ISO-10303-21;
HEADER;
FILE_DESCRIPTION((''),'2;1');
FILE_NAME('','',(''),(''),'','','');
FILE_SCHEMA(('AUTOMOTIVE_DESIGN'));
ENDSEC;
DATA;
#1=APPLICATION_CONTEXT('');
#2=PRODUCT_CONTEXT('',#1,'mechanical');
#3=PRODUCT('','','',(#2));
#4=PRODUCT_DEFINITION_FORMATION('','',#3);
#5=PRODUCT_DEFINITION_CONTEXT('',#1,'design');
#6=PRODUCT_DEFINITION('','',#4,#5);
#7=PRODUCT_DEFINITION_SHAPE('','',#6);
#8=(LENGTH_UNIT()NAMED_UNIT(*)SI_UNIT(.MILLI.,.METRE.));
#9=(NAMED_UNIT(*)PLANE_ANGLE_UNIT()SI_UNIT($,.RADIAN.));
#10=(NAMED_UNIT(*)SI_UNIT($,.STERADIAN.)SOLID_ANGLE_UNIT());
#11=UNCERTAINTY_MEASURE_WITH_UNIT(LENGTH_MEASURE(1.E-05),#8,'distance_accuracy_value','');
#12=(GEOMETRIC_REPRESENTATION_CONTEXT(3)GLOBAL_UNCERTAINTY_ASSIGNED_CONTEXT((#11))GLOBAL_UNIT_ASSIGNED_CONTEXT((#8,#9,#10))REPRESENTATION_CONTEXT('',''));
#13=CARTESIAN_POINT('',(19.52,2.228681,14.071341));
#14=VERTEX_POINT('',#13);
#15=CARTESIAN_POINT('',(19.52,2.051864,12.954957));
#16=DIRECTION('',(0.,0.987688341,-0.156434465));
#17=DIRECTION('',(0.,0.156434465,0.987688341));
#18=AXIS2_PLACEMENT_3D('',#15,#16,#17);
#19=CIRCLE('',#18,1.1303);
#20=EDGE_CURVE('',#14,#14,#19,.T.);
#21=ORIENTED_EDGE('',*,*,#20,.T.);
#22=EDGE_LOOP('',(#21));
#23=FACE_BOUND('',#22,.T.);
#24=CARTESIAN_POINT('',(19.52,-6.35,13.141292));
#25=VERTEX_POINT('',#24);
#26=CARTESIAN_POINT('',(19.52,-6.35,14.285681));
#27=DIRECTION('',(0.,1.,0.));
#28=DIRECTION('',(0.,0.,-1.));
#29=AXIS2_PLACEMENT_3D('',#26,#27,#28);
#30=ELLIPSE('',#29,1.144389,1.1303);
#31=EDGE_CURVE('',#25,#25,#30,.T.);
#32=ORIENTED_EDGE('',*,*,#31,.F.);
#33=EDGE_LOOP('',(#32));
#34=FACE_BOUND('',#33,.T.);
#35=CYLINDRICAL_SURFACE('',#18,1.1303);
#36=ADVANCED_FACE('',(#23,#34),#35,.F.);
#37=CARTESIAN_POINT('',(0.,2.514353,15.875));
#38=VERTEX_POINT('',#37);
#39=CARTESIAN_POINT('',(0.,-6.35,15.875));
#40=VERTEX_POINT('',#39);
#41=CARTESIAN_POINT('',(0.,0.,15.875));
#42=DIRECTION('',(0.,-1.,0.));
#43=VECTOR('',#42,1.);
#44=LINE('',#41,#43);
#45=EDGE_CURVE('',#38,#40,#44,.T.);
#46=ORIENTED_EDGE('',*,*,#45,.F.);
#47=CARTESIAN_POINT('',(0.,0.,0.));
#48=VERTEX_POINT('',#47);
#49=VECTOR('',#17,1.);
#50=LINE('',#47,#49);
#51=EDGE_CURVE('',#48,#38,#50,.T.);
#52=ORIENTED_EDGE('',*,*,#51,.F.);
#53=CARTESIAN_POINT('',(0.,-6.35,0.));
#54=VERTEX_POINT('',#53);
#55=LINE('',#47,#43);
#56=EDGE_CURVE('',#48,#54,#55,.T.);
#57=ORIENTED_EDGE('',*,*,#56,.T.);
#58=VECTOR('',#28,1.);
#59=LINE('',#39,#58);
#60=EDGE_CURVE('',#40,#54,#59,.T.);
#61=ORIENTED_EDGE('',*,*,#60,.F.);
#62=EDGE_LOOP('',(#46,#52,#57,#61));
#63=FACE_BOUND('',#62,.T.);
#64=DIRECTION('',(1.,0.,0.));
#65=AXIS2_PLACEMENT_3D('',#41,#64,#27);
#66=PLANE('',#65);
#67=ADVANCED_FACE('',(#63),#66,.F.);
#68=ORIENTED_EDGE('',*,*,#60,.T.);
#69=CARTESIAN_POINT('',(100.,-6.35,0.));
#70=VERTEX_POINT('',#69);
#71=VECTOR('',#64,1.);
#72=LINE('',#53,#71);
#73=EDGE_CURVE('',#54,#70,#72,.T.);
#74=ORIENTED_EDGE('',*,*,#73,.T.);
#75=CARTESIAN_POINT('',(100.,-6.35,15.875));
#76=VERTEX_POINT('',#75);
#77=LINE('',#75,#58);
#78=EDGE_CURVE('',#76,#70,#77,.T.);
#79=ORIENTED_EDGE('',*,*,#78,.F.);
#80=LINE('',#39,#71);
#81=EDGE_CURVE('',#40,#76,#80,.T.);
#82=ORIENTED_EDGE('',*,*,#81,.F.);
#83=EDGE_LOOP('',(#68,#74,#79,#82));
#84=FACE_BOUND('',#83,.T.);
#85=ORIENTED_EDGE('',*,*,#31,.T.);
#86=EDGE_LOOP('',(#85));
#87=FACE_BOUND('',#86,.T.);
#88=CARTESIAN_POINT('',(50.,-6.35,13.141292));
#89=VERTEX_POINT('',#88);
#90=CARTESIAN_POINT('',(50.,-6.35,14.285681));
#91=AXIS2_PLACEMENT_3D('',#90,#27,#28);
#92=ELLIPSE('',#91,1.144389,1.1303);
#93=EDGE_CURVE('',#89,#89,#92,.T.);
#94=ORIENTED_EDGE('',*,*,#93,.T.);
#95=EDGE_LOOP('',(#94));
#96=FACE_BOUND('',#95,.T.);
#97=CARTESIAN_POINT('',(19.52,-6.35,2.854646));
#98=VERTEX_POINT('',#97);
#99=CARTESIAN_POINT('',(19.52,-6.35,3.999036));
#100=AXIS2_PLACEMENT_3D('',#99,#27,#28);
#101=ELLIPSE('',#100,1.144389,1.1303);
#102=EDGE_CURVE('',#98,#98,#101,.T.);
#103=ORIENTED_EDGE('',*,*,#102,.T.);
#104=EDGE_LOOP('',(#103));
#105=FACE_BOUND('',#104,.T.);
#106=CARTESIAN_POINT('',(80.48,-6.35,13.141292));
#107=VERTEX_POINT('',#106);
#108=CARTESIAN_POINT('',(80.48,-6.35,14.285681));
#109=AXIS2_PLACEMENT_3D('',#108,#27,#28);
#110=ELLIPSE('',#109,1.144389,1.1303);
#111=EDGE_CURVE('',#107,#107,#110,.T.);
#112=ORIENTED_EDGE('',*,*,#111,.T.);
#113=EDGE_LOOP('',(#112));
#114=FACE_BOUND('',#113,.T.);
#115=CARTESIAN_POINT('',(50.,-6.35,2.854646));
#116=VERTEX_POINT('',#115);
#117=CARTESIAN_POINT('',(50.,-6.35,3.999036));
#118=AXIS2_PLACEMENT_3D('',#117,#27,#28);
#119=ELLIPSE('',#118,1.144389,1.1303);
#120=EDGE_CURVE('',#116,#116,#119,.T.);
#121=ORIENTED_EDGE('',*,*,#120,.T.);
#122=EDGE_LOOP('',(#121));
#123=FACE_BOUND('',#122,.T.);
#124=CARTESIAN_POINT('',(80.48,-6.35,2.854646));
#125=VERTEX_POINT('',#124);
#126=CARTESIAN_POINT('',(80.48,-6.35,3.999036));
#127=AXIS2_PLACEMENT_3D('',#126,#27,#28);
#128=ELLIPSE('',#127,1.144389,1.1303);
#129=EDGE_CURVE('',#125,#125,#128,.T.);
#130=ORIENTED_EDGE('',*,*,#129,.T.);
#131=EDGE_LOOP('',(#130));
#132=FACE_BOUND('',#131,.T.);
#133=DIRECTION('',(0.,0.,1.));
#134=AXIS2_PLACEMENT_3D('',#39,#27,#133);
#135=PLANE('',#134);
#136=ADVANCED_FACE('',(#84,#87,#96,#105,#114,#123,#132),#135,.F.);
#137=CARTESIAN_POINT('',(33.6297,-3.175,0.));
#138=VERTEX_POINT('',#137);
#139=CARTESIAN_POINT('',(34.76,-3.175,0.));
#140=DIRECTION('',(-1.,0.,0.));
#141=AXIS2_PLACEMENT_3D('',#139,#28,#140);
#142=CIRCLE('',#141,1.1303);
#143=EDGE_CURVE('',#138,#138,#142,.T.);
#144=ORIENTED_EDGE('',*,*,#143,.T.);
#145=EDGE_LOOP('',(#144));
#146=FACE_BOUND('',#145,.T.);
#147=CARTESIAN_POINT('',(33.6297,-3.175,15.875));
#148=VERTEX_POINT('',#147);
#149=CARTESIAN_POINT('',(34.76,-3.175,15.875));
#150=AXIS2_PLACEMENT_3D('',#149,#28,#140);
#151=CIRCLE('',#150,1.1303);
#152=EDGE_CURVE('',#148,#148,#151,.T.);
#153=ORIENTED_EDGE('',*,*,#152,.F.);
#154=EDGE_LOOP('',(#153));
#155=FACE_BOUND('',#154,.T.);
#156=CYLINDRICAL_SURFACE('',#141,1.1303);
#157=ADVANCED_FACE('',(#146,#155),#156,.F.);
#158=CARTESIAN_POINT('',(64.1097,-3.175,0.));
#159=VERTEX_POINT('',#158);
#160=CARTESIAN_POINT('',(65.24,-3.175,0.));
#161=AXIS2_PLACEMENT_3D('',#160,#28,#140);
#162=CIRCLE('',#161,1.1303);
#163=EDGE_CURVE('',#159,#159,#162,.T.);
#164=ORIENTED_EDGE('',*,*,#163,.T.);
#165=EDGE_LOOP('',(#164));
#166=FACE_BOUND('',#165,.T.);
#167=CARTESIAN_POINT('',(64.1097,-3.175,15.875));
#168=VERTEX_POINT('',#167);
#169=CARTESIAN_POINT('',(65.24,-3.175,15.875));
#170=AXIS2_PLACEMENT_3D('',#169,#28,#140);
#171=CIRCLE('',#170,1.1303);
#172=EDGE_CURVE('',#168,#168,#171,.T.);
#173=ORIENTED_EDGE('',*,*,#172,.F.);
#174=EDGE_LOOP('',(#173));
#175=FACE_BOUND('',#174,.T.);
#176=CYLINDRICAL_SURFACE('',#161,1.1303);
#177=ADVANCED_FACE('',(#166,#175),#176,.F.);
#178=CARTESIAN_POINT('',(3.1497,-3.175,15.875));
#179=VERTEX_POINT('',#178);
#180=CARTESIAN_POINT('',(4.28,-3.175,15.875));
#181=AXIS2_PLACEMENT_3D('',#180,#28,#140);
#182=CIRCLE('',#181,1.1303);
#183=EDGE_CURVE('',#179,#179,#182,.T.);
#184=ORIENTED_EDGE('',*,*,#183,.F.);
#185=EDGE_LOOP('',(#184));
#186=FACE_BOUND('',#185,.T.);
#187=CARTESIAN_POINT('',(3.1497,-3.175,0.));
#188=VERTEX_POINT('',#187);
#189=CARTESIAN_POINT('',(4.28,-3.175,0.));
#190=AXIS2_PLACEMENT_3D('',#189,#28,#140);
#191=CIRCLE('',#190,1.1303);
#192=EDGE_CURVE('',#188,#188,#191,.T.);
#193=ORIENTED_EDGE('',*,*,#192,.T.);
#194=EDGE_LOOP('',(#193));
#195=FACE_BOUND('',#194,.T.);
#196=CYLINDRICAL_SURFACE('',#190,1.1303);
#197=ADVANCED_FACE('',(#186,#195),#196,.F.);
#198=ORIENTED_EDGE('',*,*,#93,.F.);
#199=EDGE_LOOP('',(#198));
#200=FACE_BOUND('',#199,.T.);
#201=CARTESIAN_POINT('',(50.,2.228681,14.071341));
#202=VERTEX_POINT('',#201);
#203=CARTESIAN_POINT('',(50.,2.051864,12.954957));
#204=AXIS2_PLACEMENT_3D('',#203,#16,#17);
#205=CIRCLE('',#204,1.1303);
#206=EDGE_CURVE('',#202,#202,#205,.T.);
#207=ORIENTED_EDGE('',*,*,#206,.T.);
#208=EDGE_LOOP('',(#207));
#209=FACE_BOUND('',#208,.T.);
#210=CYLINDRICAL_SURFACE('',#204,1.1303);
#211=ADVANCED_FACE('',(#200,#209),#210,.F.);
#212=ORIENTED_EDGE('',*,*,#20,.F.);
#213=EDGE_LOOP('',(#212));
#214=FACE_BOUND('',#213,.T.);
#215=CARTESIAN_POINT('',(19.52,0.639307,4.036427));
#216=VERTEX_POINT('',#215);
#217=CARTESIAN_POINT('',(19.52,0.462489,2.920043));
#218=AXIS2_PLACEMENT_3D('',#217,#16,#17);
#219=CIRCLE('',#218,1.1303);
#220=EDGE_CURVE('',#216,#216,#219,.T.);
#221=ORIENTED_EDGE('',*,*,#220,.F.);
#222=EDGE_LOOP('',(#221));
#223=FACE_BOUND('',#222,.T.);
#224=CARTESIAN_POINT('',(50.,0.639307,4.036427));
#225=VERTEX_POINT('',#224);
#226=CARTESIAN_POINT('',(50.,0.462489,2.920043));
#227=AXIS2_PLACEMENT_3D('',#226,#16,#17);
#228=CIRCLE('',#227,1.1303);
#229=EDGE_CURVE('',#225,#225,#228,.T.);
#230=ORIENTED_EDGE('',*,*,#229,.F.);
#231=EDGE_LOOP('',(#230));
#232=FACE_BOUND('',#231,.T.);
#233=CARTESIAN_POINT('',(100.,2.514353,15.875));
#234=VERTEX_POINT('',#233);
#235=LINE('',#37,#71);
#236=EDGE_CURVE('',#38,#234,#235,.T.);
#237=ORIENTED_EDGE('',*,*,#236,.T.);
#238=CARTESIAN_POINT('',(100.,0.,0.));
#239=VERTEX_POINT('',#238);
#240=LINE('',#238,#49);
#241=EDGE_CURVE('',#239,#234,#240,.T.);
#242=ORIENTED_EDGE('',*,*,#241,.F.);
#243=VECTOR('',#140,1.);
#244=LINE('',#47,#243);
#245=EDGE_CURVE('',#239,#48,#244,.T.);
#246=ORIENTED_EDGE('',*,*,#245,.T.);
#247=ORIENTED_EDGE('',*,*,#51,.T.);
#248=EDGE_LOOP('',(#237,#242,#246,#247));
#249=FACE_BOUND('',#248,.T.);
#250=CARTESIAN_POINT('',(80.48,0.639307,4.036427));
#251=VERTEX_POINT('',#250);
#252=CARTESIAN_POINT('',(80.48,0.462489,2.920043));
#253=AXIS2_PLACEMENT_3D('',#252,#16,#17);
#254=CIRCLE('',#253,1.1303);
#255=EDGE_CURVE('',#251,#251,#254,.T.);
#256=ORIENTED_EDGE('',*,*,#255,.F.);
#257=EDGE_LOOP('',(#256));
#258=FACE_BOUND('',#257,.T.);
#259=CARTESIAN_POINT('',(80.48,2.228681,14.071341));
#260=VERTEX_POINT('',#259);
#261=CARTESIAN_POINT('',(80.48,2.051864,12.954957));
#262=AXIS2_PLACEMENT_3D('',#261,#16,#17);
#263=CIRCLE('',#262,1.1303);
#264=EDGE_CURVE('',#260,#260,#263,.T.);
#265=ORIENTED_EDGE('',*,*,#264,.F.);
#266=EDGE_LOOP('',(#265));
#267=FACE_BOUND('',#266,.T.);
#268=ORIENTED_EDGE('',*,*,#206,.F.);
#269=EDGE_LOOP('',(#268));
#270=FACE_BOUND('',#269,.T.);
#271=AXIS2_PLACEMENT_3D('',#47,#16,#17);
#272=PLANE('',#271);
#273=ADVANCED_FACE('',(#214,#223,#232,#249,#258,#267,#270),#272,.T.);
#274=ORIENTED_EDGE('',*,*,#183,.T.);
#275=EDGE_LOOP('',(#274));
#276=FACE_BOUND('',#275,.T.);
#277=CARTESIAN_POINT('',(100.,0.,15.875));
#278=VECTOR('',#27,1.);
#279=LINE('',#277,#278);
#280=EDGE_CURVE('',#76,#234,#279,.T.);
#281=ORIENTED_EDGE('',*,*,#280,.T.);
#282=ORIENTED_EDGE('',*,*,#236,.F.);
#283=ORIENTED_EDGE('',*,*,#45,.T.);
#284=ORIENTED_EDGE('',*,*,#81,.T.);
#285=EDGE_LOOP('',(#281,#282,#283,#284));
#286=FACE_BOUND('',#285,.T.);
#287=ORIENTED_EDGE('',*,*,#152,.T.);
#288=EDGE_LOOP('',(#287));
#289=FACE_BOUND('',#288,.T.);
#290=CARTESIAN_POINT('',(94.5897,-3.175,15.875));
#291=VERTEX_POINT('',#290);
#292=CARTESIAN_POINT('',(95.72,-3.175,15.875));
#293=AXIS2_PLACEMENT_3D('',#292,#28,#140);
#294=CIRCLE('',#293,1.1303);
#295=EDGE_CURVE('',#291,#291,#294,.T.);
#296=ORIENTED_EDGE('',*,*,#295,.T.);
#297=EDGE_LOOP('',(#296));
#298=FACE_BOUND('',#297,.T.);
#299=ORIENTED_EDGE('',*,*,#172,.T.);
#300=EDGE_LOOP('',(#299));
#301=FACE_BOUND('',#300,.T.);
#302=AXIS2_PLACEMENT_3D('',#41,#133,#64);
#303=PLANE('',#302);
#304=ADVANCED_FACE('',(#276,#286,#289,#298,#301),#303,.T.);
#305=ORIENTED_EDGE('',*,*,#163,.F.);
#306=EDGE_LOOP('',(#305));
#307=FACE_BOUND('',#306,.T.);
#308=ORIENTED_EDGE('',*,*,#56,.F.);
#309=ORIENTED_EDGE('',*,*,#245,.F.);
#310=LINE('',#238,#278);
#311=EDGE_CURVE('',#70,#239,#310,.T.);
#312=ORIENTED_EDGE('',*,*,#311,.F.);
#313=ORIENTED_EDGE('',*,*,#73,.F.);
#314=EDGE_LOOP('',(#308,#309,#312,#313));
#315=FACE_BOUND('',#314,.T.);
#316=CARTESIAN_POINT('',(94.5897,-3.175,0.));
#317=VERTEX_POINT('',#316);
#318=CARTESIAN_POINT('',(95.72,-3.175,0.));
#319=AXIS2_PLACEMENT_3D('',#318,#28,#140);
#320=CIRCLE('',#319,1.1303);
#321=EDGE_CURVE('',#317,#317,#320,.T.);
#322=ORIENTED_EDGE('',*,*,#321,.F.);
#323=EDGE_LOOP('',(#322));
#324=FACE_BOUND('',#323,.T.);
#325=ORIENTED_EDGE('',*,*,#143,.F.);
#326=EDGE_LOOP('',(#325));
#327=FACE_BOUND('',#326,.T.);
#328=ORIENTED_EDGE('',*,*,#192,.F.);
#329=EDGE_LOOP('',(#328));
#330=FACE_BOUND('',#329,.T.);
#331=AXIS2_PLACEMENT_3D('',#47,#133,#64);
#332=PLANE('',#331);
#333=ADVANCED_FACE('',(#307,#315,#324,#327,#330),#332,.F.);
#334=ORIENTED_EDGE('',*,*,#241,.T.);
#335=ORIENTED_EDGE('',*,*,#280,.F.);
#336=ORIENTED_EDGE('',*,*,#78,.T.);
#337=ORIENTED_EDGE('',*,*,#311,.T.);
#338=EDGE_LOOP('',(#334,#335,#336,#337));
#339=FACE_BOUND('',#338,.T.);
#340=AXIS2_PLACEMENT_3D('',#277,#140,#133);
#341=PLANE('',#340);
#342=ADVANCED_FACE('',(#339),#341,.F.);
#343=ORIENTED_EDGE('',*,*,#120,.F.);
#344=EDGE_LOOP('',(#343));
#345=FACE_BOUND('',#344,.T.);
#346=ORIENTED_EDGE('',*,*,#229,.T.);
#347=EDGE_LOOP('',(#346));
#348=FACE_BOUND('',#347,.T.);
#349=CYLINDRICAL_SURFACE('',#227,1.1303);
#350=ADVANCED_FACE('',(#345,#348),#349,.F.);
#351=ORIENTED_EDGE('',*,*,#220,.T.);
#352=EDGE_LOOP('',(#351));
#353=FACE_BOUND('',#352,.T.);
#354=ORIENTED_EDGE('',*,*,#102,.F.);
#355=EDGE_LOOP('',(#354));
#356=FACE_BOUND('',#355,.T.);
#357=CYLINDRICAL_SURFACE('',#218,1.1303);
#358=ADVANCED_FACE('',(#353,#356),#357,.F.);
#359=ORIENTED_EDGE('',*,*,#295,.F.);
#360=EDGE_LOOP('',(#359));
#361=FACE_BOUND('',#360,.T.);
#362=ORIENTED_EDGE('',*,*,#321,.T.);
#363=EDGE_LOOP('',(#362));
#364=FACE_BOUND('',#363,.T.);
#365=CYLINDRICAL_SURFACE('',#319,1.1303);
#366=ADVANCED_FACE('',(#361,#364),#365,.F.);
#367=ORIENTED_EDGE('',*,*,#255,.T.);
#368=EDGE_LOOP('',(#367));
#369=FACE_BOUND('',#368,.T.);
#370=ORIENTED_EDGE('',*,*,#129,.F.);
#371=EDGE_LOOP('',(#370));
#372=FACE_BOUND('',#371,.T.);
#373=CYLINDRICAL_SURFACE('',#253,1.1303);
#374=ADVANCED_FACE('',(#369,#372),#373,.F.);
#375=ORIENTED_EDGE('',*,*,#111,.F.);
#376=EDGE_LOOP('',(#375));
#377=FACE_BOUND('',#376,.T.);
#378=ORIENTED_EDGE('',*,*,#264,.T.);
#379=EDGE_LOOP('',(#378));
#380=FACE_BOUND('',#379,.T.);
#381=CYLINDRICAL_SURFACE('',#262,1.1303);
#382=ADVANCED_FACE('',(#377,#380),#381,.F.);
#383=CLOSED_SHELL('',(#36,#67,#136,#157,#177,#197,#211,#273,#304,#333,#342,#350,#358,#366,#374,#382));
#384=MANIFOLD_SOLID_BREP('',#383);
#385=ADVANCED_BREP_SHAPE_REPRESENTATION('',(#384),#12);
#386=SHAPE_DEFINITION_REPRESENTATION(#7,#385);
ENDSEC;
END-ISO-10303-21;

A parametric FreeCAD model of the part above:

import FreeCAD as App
import Part
import Sketcher

V = App.Vector
Q = App.Units.Quantity


def add_polygon(sketch, points):
    """Adds a closed chain of lines whose ends are joined by coincident constraints."""
    first, n = sketch.GeometryCount, len(points)
    for a, b in zip(points, points[1:] + points[:1]):
        sketch.addGeometry(Part.LineSegment(App.Vector(*a, 0), App.Vector(*b, 0)), False)
    for i in range(n):
        sketch.addConstraint(Sketcher.Constraint("Coincident", first + i, 2, first + (i + 1) % n, 1))

doc = App.newDocument("Part")
body = doc.addObject("PartDesign::Body", "Body")

sketch1 = doc.addObject("Sketcher::SketchObject", "Sketch")
body.addObject(sketch1)
sketch1.AttachmentSupport = (doc.XY_Plane, [""])
sketch1.MapMode = "FlatFace"
add_polygon(sketch1, [(0, 0), (0, -6.35), (100, -6.35), (100, 0)])
sketch1.addConstraint(Sketcher.Constraint("Vertical", 0))
sketch1.addConstraint(Sketcher.Constraint("Horizontal", 1))
sketch1.addConstraint(Sketcher.Constraint("Vertical", 2))
sketch1.addConstraint(Sketcher.Constraint("Horizontal", 3))
sketch1.addConstraint(Sketcher.Constraint("Coincident", 3, 2, -1, 1))
sketch1.addConstraint(Sketcher.Constraint("DistanceY", 0, 2, 0, 1, Q("0.25 in")))
sketch1.addConstraint(Sketcher.Constraint("DistanceX", 1, 1, 1, 2, Q("100 mm")))
pad1 = doc.addObject("PartDesign::Pad", "Pad")
body.addObject(pad1)
pad1.Profile = sketch1
pad1.Length = Q("0.625 in")

sketch2 = doc.addObject("Sketcher::SketchObject", "Sketch001")
body.addObject(sketch2)
sketch2.AttachmentSupport = (doc.XY_Plane, [""])
sketch2.MapMode = "FlatFace"
sketch2.addGeometry(Part.Circle(V(95.72, -3.175, 0), V(0, 0, 1), 1.1303), False)
sketch2.addGeometry(Part.Circle(V(4.28, -3.175, 0), V(0, 0, 1), 1.1303), False)
sketch2.addGeometry(Part.Circle(V(34.76, -3.175, 0), V(0, 0, 1), 1.1303), False)
sketch2.addGeometry(Part.Circle(V(65.24, -3.175, 0), V(0, 0, 1), 1.1303), False)
sketch2.addConstraint(Sketcher.Constraint("Equal", 0, 1))
sketch2.addConstraint(Sketcher.Constraint("Equal", 1, 2))
sketch2.addConstraint(Sketcher.Constraint("Equal", 2, 3))
sketch2.addConstraint(Sketcher.Constraint("Horizontal", 0, 3, 1, 3))
sketch2.addConstraint(Sketcher.Constraint("Horizontal", 1, 3, 2, 3))
sketch2.addConstraint(Sketcher.Constraint("Horizontal", 2, 3, 3, 3))
sketch2.addConstraint(Sketcher.Constraint("Diameter", 0, Q("0.089 in")))
sketch2.addConstraint(Sketcher.Constraint("DistanceX", 1, 3, 0, 3, Q("3.6 in")))
sketch2.addConstraint(Sketcher.Constraint("DistanceX", 1, 3, 2, 3, Q("1.2 in")))
sketch2.addConstraint(Sketcher.Constraint("DistanceX", 2, 3, 3, 3, Q("1.2 in")))
sketch2.addConstraint(Sketcher.Constraint("DistanceY", 0, 3, -1, 1, Q("0.125 in")))
sketch2.addConstraint(Sketcher.Constraint("DistanceX", -1, 1, 0, 3, Q("95.72 mm")))
doc.recompute()
hole = doc.addObject("PartDesign::Hole", "Hole")
body.addObject(hole)
hole.Profile = sketch2
hole.ThreadType = "None"
hole.Diameter = Q("0.089 in")
hole.DepthType = "ThroughAll"
hole.Reversed = True

sketch3 = doc.addObject("Sketcher::SketchObject", "Sketch002")
body.addObject(sketch3)
sketch3.AttachmentSupport = (doc.YZ_Plane, [""])
sketch3.MapMode = "FlatFace"
sketch3.AttachmentOffset = App.Placement(V(0, 0, 100), App.Rotation())
add_polygon(sketch3, [(0, 0), (2.514353, 15.875), (0, 15.875)])
sketch3.addConstraint(Sketcher.Constraint("Horizontal", 1))
sketch3.addConstraint(Sketcher.Constraint("Vertical", 2))
sketch3.addConstraint(Sketcher.Constraint("Coincident", 2, 2, -1, 1))
sketch3.addConstraint(Sketcher.Constraint("Angle", 0, Q("81 deg")))
sketch3.addConstraint(Sketcher.Constraint("DistanceY", 2, 2, 2, 1, Q("0.625 in")))
pad2 = doc.addObject("PartDesign::Pad", "Pad001")
body.addObject(pad2)
pad2.Profile = sketch3
pad2.Length = 100
pad2.Reversed = True

sketch4 = doc.addObject("Sketcher::SketchObject", "Sketch003")
body.addObject(sketch4)
sketch4.Placement = App.Placement(V(0, 0, 0), App.Rotation(V(1, 0, 0), V(0, -0.156434465, -0.987688341), V(0, 0.987688341, -0.156434465), "ZXY"))
sketch4.addGeometry(Part.Circle(V(80.48, -13.116442, 0), V(0, 0, 1), 1.1303), False)
sketch4.addGeometry(Part.Circle(V(80.48, -2.956442, 0), V(0, 0, 1), 1.1303), False)
sketch4.addGeometry(Part.Circle(V(50, -13.116442, 0), V(0, 0, 1), 1.1303), False)
sketch4.addGeometry(Part.Circle(V(50, -2.956442, 0), V(0, 0, 1), 1.1303), False)
sketch4.addGeometry(Part.Circle(V(19.52, -13.116442, 0), V(0, 0, 1), 1.1303), False)
sketch4.addGeometry(Part.Circle(V(19.52, -2.956442, 0), V(0, 0, 1), 1.1303), False)
sketch4.addConstraint(Sketcher.Constraint("Equal", 0, 1))
sketch4.addConstraint(Sketcher.Constraint("Equal", 1, 2))
sketch4.addConstraint(Sketcher.Constraint("Equal", 2, 3))
sketch4.addConstraint(Sketcher.Constraint("Equal", 3, 4))
sketch4.addConstraint(Sketcher.Constraint("Equal", 4, 5))
sketch4.addConstraint(Sketcher.Constraint("Horizontal", 0, 3, 2, 3))
sketch4.addConstraint(Sketcher.Constraint("Horizontal", 1, 3, 3, 3))
sketch4.addConstraint(Sketcher.Constraint("Horizontal", 2, 3, 4, 3))
sketch4.addConstraint(Sketcher.Constraint("Horizontal", 3, 3, 5, 3))
sketch4.addConstraint(Sketcher.Constraint("Vertical", 0, 3, 1, 3))
sketch4.addConstraint(Sketcher.Constraint("Vertical", 2, 3, 3, 3))
sketch4.addConstraint(Sketcher.Constraint("Vertical", 4, 3, 5, 3))
sketch4.addConstraint(Sketcher.Constraint("Diameter", 0, Q("0.089 in")))
sketch4.addConstraint(Sketcher.Constraint("DistanceY", 0, 3, 1, 3, Q("0.4 in")))
sketch4.addConstraint(Sketcher.Constraint("DistanceX", 2, 3, 0, 3, Q("1.2 in")))
sketch4.addConstraint(Sketcher.Constraint("DistanceX", 4, 3, 2, 3, Q("1.2 in")))
sketch4.addConstraint(Sketcher.Constraint("DistanceX", -1, 1, 0, 3, Q("80.48 mm")))
sketch4.addConstraint(Sketcher.Constraint("DistanceY", 0, 3, -1, 1, Q("13.116442 mm")))
doc.recompute()
hole2 = doc.addObject("PartDesign::Hole", "Hole001")
body.addObject(hole2)
hole2.Profile = sketch4
hole2.ThreadType = "None"
hole2.Diameter = Q("0.089 in")
hole2.DepthType = "ThroughAll"

doc.recompute()
